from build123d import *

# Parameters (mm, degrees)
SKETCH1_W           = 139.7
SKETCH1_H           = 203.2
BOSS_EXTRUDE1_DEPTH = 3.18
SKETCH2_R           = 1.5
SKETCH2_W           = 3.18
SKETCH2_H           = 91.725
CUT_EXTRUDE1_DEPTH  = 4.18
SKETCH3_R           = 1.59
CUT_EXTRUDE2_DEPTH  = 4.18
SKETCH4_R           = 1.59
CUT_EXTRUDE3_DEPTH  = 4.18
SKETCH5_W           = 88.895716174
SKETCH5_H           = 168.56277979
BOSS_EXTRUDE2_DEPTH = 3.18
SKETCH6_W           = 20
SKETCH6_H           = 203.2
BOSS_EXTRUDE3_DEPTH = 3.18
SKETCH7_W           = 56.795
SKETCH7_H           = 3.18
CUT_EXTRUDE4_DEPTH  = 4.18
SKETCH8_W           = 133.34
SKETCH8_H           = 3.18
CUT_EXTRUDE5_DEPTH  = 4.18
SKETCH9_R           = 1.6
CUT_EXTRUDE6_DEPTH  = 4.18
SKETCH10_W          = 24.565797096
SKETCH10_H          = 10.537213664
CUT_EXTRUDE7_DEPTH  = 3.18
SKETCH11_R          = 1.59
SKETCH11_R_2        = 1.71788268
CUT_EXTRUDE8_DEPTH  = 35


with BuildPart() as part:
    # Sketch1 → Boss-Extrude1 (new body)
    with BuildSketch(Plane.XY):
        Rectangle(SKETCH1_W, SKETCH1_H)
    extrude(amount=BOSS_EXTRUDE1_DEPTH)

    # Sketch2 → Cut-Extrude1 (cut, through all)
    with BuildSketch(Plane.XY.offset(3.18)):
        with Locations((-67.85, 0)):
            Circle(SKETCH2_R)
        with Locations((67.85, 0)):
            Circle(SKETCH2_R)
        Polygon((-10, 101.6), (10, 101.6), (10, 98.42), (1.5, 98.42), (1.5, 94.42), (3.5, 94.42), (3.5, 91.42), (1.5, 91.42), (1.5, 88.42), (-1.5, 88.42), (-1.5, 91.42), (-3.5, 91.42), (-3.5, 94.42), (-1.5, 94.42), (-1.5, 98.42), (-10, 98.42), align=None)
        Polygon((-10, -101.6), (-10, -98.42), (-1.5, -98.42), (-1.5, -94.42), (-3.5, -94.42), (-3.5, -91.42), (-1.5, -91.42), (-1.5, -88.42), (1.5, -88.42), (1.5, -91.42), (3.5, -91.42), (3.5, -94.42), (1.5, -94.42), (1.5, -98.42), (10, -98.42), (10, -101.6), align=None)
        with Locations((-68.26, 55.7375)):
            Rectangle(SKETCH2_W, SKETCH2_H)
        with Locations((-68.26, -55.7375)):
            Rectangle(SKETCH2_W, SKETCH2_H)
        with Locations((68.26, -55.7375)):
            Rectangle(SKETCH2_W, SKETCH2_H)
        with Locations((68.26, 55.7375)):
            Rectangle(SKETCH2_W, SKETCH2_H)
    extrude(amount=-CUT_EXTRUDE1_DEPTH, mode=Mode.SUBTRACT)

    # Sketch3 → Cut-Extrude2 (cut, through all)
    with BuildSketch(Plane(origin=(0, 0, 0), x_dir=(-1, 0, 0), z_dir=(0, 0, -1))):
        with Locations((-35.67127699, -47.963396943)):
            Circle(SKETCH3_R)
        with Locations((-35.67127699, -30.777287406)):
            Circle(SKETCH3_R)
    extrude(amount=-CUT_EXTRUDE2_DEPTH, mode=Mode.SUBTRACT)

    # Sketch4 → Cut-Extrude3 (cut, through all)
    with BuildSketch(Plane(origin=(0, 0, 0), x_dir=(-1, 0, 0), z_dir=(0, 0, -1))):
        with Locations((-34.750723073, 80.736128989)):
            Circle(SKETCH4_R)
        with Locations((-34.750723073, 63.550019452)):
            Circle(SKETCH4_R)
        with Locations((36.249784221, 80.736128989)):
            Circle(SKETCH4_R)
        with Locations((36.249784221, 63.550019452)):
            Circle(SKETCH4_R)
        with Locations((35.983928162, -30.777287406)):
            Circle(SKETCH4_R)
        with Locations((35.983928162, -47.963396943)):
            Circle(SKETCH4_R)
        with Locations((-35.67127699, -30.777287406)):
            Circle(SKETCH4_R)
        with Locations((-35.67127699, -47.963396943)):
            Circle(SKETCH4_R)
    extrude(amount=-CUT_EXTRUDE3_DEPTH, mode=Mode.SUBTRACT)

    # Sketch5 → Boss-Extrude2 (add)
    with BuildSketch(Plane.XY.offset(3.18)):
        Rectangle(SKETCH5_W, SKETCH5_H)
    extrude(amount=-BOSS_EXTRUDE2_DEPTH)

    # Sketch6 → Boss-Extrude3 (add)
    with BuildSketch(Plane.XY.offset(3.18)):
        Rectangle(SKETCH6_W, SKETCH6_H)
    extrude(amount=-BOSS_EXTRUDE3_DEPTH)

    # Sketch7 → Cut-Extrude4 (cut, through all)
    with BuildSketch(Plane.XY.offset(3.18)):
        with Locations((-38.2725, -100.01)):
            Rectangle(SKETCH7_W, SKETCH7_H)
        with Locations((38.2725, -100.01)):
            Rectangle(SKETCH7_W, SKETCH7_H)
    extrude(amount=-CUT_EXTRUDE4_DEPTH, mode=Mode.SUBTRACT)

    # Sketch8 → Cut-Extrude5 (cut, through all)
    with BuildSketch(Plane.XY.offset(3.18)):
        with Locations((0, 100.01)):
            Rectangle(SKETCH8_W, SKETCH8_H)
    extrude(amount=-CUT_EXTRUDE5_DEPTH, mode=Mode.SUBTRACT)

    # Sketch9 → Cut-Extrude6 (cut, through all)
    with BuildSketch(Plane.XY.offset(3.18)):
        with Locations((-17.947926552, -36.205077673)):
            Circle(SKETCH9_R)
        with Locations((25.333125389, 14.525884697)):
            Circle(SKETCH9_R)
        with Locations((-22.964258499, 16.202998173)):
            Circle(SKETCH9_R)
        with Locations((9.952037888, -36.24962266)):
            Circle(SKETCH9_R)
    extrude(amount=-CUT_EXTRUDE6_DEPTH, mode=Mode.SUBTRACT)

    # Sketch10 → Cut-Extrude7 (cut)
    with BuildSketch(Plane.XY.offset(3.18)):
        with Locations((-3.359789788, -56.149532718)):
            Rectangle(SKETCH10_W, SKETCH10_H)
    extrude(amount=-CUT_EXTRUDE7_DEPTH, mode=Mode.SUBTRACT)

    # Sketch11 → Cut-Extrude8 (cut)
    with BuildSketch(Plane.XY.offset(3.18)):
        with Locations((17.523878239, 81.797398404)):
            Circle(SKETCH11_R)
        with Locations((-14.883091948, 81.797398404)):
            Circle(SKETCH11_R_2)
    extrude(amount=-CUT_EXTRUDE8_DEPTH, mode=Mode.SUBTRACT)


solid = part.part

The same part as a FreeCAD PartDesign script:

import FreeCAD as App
import Part
import Sketcher
from FreeCAD import Vector

doc = App.newDocument("Part")
params = doc.addObject("Spreadsheet::Sheet", "Params")
for row, (alias, value) in enumerate([
    ("sketch1_width", "139.7 mm"),
    ("sketch1_height", "203.2 mm"),
    ("pad1_length", "3.18 mm"),
    ("sketch2_diameter", "3 mm"),
    ("sketch2_width", "20 mm"),
    ("sketch2_width2", "2 mm"),
    ("sketch2_width3", "3 mm"),
    ("sketch2_height", "4 mm"),
    ("sketch3_diameter", "3.18 mm"),
    ("sketch4_diameter", "3.18 mm"),
    ("pad2_length", "3.18 mm"),
    ("sketch6_width", "20 mm"),
    ("sketch6_height", "203.2 mm"),
    ("pad3_length", "3.18 mm"),
    ("sketch7_height", "3.18 mm"),
    ("sketch8_width", "133.34 mm"),
    ("sketch8_height", "3.18 mm"),
    ("sketch9_diameter", "3.2 mm"),
    ("pocket7_length", "3.18 mm"),
    ("sketch11_diameter", "3.18 mm"),
    ("pocket8_length", "35 mm"),
], start=1):
    params.set(f"A{row}", alias)
    params.set(f"B{row}", "=" + value)
    params.setAlias(f"B{row}", alias)

body = doc.addObject("PartDesign::Body", "Body")

sketch1 = body.newObject("Sketcher::SketchObject", "Sketch")
sketch1.AttachmentSupport = (doc.getObject("XY_Plane"), [""])
sketch1.MapMode = "FlatFace"
sketch1.addGeometry(Part.LineSegment(Vector(-69.85, 101.6, 0), Vector(-69.85, -101.6, 0)), False)
sketch1.addGeometry(Part.LineSegment(Vector(-69.85, -101.6, 0), Vector(69.85, -101.6, 0)), False)
sketch1.addGeometry(Part.LineSegment(Vector(69.85, -101.6, 0), Vector(69.85, 101.6, 0)), False)
sketch1.addGeometry(Part.LineSegment(Vector(69.85, 101.6, 0), Vector(-69.85, 101.6, 0)), False)
sketch1.addConstraint(Sketcher.Constraint("Coincident", 0, 2, 1, 1))
sketch1.addConstraint(Sketcher.Constraint("Coincident", 1, 2, 2, 1))
sketch1.addConstraint(Sketcher.Constraint("Coincident", 2, 2, 3, 1))
sketch1.addConstraint(Sketcher.Constraint("Coincident", 3, 2, 0, 1))
sketch1.addConstraint(Sketcher.Constraint("Vertical", 0))
sketch1.addConstraint(Sketcher.Constraint("Horizontal", 1))
sketch1.addConstraint(Sketcher.Constraint("Vertical", 2))
sketch1.addConstraint(Sketcher.Constraint("Horizontal", 3))
sketch1.addConstraint(Sketcher.Constraint("Symmetric", 0, 2, 2, 2, -1, 1))
sketch1.addConstraint(Sketcher.Constraint("DistanceX", 1, 1, 1, 2, 139.7))
sketch1.addConstraint(Sketcher.Constraint("DistanceY", 0, 2, 0, 1, 203.2))
sketch1.setExpression("Constraints[9]", "Params.sketch1_width")
sketch1.setExpression("Constraints[10]", "Params.sketch1_height")
pad1 = body.newObject("PartDesign::Pad", "Pad")
pad1.Profile = sketch1
pad1.setExpression("Length", "Params.pad1_length")

sketch2 = body.newObject("Sketcher::SketchObject", "Sketch001")
sketch2.AttachmentSupport = (doc.getObject("XY_Plane"), [""])
sketch2.MapMode = "FlatFace"
sketch2.AttachmentOffset = App.Placement(Vector(0, 0, 3.18), App.Rotation())
sketch2.addGeometry(Part.Circle(Vector(-67.85, 0, 0), Vector(0, 0, 1), 1.5), False)
sketch2.addGeometry(Part.Circle(Vector(67.85, 0, 0), Vector(0, 0, 1), 1.5), False)
sketch2.addGeometry(Part.LineSegment(Vector(10, 101.6, 0), Vector(-10, 101.6, 0)), False)
sketch2.addGeometry(Part.LineSegment(Vector(-10, 101.6, 0), Vector(-10, 98.42, 0)), False)
sketch2.addGeometry(Part.LineSegment(Vector(-10, 98.42, 0), Vector(-1.5, 98.42, 0)), False)
sketch2.addGeometry(Part.LineSegment(Vector(-1.5, 98.42, 0), Vector(-1.5, 94.42, 0)), False)
sketch2.addGeometry(Part.LineSegment(Vector(-1.5, 94.42, 0), Vector(-3.5, 94.42, 0)), False)
sketch2.addGeometry(Part.LineSegment(Vector(-3.5, 94.42, 0), Vector(-3.5, 91.42, 0)), False)
sketch2.addGeometry(Part.LineSegment(Vector(-3.5, 91.42, 0), Vector(-1.5, 91.42, 0)), False)
sketch2.addGeometry(Part.LineSegment(Vector(-1.5, 91.42, 0), Vector(-1.5, 88.42, 0)), False)
sketch2.addGeometry(Part.LineSegment(Vector(-1.5, 88.42, 0), Vector(1.5, 88.42, 0)), False)
sketch2.addGeometry(Part.LineSegment(Vector(1.5, 88.42, 0), Vector(1.5, 91.42, 0)), False)
sketch2.addGeometry(Part.LineSegment(Vector(1.5, 91.42, 0), Vector(3.5, 91.42, 0)), False)
sketch2.addGeometry(Part.LineSegment(Vector(3.5, 91.42, 0), Vector(3.5, 94.42, 0)), False)
sketch2.addGeometry(Part.LineSegment(Vector(3.5, 94.42, 0), Vector(1.5, 94.42, 0)), False)
sketch2.addGeometry(Part.LineSegment(Vector(1.5, 94.42, 0), Vector(1.5, 98.42, 0)), False)
sketch2.addGeometry(Part.LineSegment(Vector(1.5, 98.42, 0), Vector(10, 98.42, 0)), False)
sketch2.addGeometry(Part.LineSegment(Vector(10, 98.42, 0), Vector(10, 101.6, 0)), False)
sketch2.addGeometry(Part.LineSegment(Vector(-10, -98.42, 0), Vector(-10, -101.6, 0)), False)
sketch2.addGeometry(Part.LineSegment(Vector(-10, -101.6, 0), Vector(10, -101.6, 0)), False)
sketch2.addGeometry(Part.LineSegment(Vector(10, -101.6, 0), Vector(10, -98.42, 0)), False)
sketch2.addGeometry(Part.LineSegment(Vector(10, -98.42, 0), Vector(1.5, -98.42, 0)), False)
sketch2.addGeometry(Part.LineSegment(Vector(1.5, -98.42, 0), Vector(1.5, -94.42, 0)), False)
sketch2.addGeometry(Part.LineSegment(Vector(1.5, -94.42, 0), Vector(3.5, -94.42, 0)), False)
sketch2.addGeometry(Part.LineSegment(Vector(3.5, -94.42, 0), Vector(3.5, -91.42, 0)), False)
sketch2.addGeometry(Part.LineSegment(Vector(3.5, -91.42, 0), Vector(1.5, -91.42, 0)), False)
sketch2.addGeometry(Part.LineSegment(Vector(1.5, -91.42, 0), Vector(1.5, -88.42, 0)), False)
sketch2.addGeometry(Part.LineSegment(Vector(1.5, -88.42, 0), Vector(-1.5, -88.42, 0)), False)
sketch2.addGeometry(Part.LineSegment(Vector(-1.5, -88.42, 0), Vector(-1.5, -91.42, 0)), False)
sketch2.addGeometry(Part.LineSegment(Vector(-1.5, -91.42, 0), Vector(-3.5, -91.42, 0)), False)
sketch2.addGeometry(Part.LineSegment(Vector(-3.5, -91.42, 0), Vector(-3.5, -94.42, 0)), False)
sketch2.addGeometry(Part.LineSegment(Vector(-3.5, -94.42, 0), Vector(-1.5, -94.42, 0)), False)
sketch2.addGeometry(Part.LineSegment(Vector(-1.5, -94.42, 0), Vector(-1.5, -98.42, 0)), False)
sketch2.addGeometry(Part.LineSegment(Vector(-1.5, -98.42, 0), Vector(-10, -98.42, 0)), False)
sketch2.addGeometry(Part.LineSegment(Vector(-69.85, 101.6, 0), Vector(-69.85, 9.875, 0)), False)
sketch2.addGeometry(Part.LineSegment(Vector(-69.85, 9.875, 0), Vector(-66.67, 9.875, 0)), False)
sketch2.addGeometry(Part.LineSegment(Vector(-66.67, 9.875, 0), Vector(-66.67, 101.6, 0)), False)
sketch2.addGeometry(Part.LineSegment(Vector(-66.67, 101.6, 0), Vector(-69.85, 101.6, 0)), False)
sketch2.addGeometry(Part.LineSegment(Vector(-69.85, -9.875, 0), Vector(-69.85, -101.6, 0)), False)
sketch2.addGeometry(Part.LineSegment(Vector(-69.85, -101.6, 0), Vector(-66.67, -101.6, 0)), False)
sketch2.addGeometry(Part.LineSegment(Vector(-66.67, -101.6, 0), Vector(-66.67, -9.875, 0)), False)
sketch2.addGeometry(Part.LineSegment(Vector(-66.67, -9.875, 0), Vector(-69.85, -9.875, 0)), False)
sketch2.addGeometry(Part.LineSegment(Vector(66.67, -9.875, 0), Vector(66.67, -101.6, 0)), False)
sketch2.addGeometry(Part.LineSegment(Vector(66.67, -101.6, 0), Vector(69.85, -101.6, 0)), False)
sketch2.addGeometry(Part.LineSegment(Vector(69.85, -101.6, 0), Vector(69.85, -9.875, 0)), False)
sketch2.addGeometry(Part.LineSegment(Vector(69.85, -9.875, 0), Vector(66.67, -9.875, 0)), False)
sketch2.addGeometry(Part.LineSegment(Vector(66.67, 101.6, 0), Vector(66.67, 9.875, 0)), False)
sketch2.addGeometry(Part.LineSegment(Vector(66.67, 9.875, 0), Vector(69.85, 9.875, 0)), False)
sketch2.addGeometry(Part.LineSegment(Vector(69.85, 9.875, 0), Vector(69.85, 101.6, 0)), False)
sketch2.addGeometry(Part.LineSegment(Vector(69.85, 101.6, 0), Vector(66.67, 101.6, 0)), False)
sketch2.addConstraint(Sketcher.Constraint("Coincident", 2, 2, 3, 1))
sketch2.addConstraint(Sketcher.Constraint("Coincident", 3, 2, 4, 1))
sketch2.addConstraint(Sketcher.Constraint("Coincident", 4, 2, 5, 1))
sketch2.addConstraint(Sketcher.Constraint("Coincident", 5, 2, 6, 1))
sketch2.addConstraint(Sketcher.Constraint("Coincident", 6, 2, 7, 1))
sketch2.addConstraint(Sketcher.Constraint("Coincident", 7, 2, 8, 1))
sketch2.addConstraint(Sketcher.Constraint("Coincident", 8, 2, 9, 1))
sketch2.addConstraint(Sketcher.Constraint("Coincident", 9, 2, 10, 1))
sketch2.addConstraint(Sketcher.Constraint("Coincident", 10, 2, 11, 1))
sketch2.addConstraint(Sketcher.Constraint("Coincident", 11, 2, 12, 1))
sketch2.addConstraint(Sketcher.Constraint("Coincident", 12, 2, 13, 1))
sketch2.addConstraint(Sketcher.Constraint("Coincident", 13, 2, 14, 1))
sketch2.addConstraint(Sketcher.Constraint("Coincident", 14, 2, 15, 1))
sketch2.addConstraint(Sketcher.Constraint("Coincident", 15, 2, 16, 1))
sketch2.addConstraint(Sketcher.Constraint("Coincident", 16, 2, 17, 1))
sketch2.addConstraint(Sketcher.Constraint("Coincident", 17, 2, 2, 1))
sketch2.addConstraint(Sketcher.Constraint("Coincident", 18, 2, 19, 1))
sketch2.addConstraint(Sketcher.Constraint("Coincident", 19, 2, 20, 1))
sketch2.addConstraint(Sketcher.Constraint("Coincident", 20, 2, 21, 1))
sketch2.addConstraint(Sketcher.Constraint("Coincident", 21, 2, 22, 1))
sketch2.addConstraint(Sketcher.Constraint("Coincident", 22, 2, 23, 1))
sketch2.addConstraint(Sketcher.Constraint("Coincident", 23, 2, 24, 1))
sketch2.addConstraint(Sketcher.Constraint("Coincident", 24, 2, 25, 1))
sketch2.addConstraint(Sketcher.Constraint("Coincident", 25, 2, 26, 1))
sketch2.addConstraint(Sketcher.Constraint("Coincident", 26, 2, 27, 1))
sketch2.addConstraint(Sketcher.Constraint("Coincident", 27, 2, 28, 1))
sketch2.addConstraint(Sketcher.Constraint("Coincident", 28, 2, 29, 1))
sketch2.addConstraint(Sketcher.Constraint("Coincident", 29, 2, 30, 1))
sketch2.addConstraint(Sketcher.Constraint("Coincident", 30, 2, 31, 1))
sketch2.addConstraint(Sketcher.Constraint("Coincident", 31, 2, 32, 1))
sketch2.addConstraint(Sketcher.Constraint("Coincident", 32, 2, 33, 1))
sketch2.addConstraint(Sketcher.Constraint("Coincident", 33, 2, 18, 1))
sketch2.addConstraint(Sketcher.Constraint("Coincident", 34, 2, 35, 1))
sketch2.addConstraint(Sketcher.Constraint("Coincident", 35, 2, 36, 1))
sketch2.addConstraint(Sketcher.Constraint("Coincident", 36, 2, 37, 1))
sketch2.addConstraint(Sketcher.Constraint("Coincident", 37, 2, 34, 1))
sketch2.addConstraint(Sketcher.Constraint("Coincident", 38, 2, 39, 1))
sketch2.addConstraint(Sketcher.Constraint("Coincident", 39, 2, 40, 1))
sketch2.addConstraint(Sketcher.Constraint("Coincident", 40, 2, 41, 1))
sketch2.addConstraint(Sketcher.Constraint("Coincident", 41, 2, 38, 1))
sketch2.addConstraint(Sketcher.Constraint("Coincident", 42, 2, 43, 1))
sketch2.addConstraint(Sketcher.Constraint("Coincident", 43, 2, 44, 1))
sketch2.addConstraint(Sketcher.Constraint("Coincident", 44, 2, 45, 1))
sketch2.addConstraint(Sketcher.Constraint("Coincident", 45, 2, 42, 1))
sketch2.addConstraint(Sketcher.Constraint("Coincident", 46, 2, 47, 1))
sketch2.addConstraint(Sketcher.Constraint("Coincident", 47, 2, 48, 1))
sketch2.addConstraint(Sketcher.Constraint("Coincident", 48, 2, 49, 1))
sketch2.addConstraint(Sketcher.Constraint("Coincident", 49, 2, 46, 1))
sketch2.addConstraint(Sketcher.Constraint("Horizontal", 2))
sketch2.addConstraint(Sketcher.Constraint("Vertical", 3))
sketch2.addConstraint(Sketcher.Constraint("Horizontal", 4))
sketch2.addConstraint(Sketcher.Constraint("Vertical", 5))
sketch2.addConstraint(Sketcher.Constraint("Horizontal", 6))
sketch2.addConstraint(Sketcher.Constraint("Vertical", 7))
sketch2.addConstraint(Sketcher.Constraint("Horizontal", 8))
sketch2.addConstraint(Sketcher.Constraint("Vertical", 9))
sketch2.addConstraint(Sketcher.Constraint("Horizontal", 10))
sketch2.addConstraint(Sketcher.Constraint("Vertical", 11))
sketch2.addConstraint(Sketcher.Constraint("Horizontal", 12))
sketch2.addConstraint(Sketcher.Constraint("Vertical", 13))
sketch2.addConstraint(Sketcher.Constraint("Horizontal", 14))
sketch2.addConstraint(Sketcher.Constraint("Vertical", 15))
sketch2.addConstraint(Sketcher.Constraint("Horizontal", 16))
sketch2.addConstraint(Sketcher.Constraint("Vertical", 17))
sketch2.addConstraint(Sketcher.Constraint("Vertical", 18))
sketch2.addConstraint(Sketcher.Constraint("Horizontal", 19))
sketch2.addConstraint(Sketcher.Constraint("Vertical", 20))
sketch2.addConstraint(Sketcher.Constraint("Horizontal", 21))
sketch2.addConstraint(Sketcher.Constraint("Vertical", 22))
sketch2.addConstraint(Sketcher.Constraint("Horizontal", 23))
sketch2.addConstraint(Sketcher.Constraint("Vertical", 24))
sketch2.addConstraint(Sketcher.Constraint("Horizontal", 25))
sketch2.addConstraint(Sketcher.Constraint("Vertical", 26))
sketch2.addConstraint(Sketcher.Constraint("Horizontal", 27))
sketch2.addConstraint(Sketcher.Constraint("Vertical", 28))
sketch2.addConstraint(Sketcher.Constraint("Horizontal", 29))
sketch2.addConstraint(Sketcher.Constraint("Vertical", 30))
sketch2.addConstraint(Sketcher.Constraint("Horizontal", 31))
sketch2.addConstraint(Sketcher.Constraint("Vertical", 32))
sketch2.addConstraint(Sketcher.Constraint("Horizontal", 33))
sketch2.addConstraint(Sketcher.Constraint("Vertical", 34))
sketch2.addConstraint(Sketcher.Constraint("Horizontal", 35))
sketch2.addConstraint(Sketcher.Constraint("Vertical", 36))
sketch2.addConstraint(Sketcher.Constraint("Horizontal", 37))
sketch2.addConstraint(Sketcher.Constraint("Vertical", 38))
sketch2.addConstraint(Sketcher.Constraint("Horizontal", 39))
sketch2.addConstraint(Sketcher.Constraint("Vertical", 40))
sketch2.addConstraint(Sketcher.Constraint("Horizontal", 41))
sketch2.addConstraint(Sketcher.Constraint("Vertical", 42))
sketch2.addConstraint(Sketcher.Constraint("Horizontal", 43))
sketch2.addConstraint(Sketcher.Constraint("Vertical", 44))
sketch2.addConstraint(Sketcher.Constraint("Horizontal", 45))
sketch2.addConstraint(Sketcher.Constraint("Vertical", 46))
sketch2.addConstraint(Sketcher.Constraint("Horizontal", 47))
sketch2.addConstraint(Sketcher.Constraint("Vertical", 48))
sketch2.addConstraint(Sketcher.Constraint("Horizontal", 49))
sketch2.addConstraint(Sketcher.Constraint("Equal", 0, 1))
sketch2.addConstraint(Sketcher.Constraint("Symmetric", 0, 3, 1, 3, -1, 1))
sketch2.addConstraint(Sketcher.Constraint("Symmetric", 17, 2, 18, 2, -1, 1))
sketch2.addConstraint(Sketcher.Constraint("Symmetric", 3, 2, 20, 2, -1, 1))
sketch2.addConstraint(Sketcher.Constraint("Symmetric", 5, 2, 22, 2, -1, 1))
sketch2.addConstraint(Sketcher.Constraint("Symmetric", 7, 2, 24, 2, -1, 1))
sketch2.addConstraint(Sketcher.Constraint("Symmetric", 9, 2, 26, 2, -1, 1))
sketch2.addConstraint(Sketcher.Constraint("Symmetric", 11, 2, 28, 2, -1, 1))
sketch2.addConstraint(Sketcher.Constraint("Symmetric", 13, 2, 30, 2, -1, 1))
sketch2.addConstraint(Sketcher.Constraint("Symmetric", 15, 2, 32, 2, -1, 1))
sketch2.addConstraint(Sketcher.Constraint("Symmetric", 36, 2, 42, 2, -1, 1))
sketch2.addConstraint(Sketcher.Constraint("Symmetric", 34, 2, 44, 2, -1, 1))
sketch2.addConstraint(Sketcher.Constraint("Symmetric", 40, 2, 46, 2, -1, 1))
sketch2.addConstraint(Sketcher.Constraint("Symmetric", 38, 2, 48, 2, -1, 1))
sketch2.addConstraint(Sketcher.Constraint("Symmetric", 8, 2, 11, 2, -2))
sketch2.addConstraint(Sketcher.Constraint("Symmetric", 6, 2, 13, 2, -2))
sketch2.addConstraint(Sketcher.Constraint("Symmetric", 4, 2, 15, 2, -2))
sketch2.addConstraint(Sketcher.Constraint("Symmetric", 39, 2, 42, 2, -2))
sketch2.addConstraint(Sketcher.Constraint("Symmetric", 41, 2, 44, 2, -2))
sketch2.addConstraint(Sketcher.Constraint("PointOnObject", 0, 3, -1))
sketch2.addConstraint(Sketcher.Constraint("Horizontal", 17, 2, 36, 2))
sketch2.addConstraint(Sketcher.Constraint("Vertical", 5, 2, 8, 2))
sketch2.addConstraint(Sketcher.Constraint("Vertical", 3, 2, 18, 2))
sketch2.addConstraint(Sketcher.Constraint("Equal", 49, 3))
sketch2.addConstraint(Sketcher.Constraint("Equal", 27, 7))
sketch2.addConstraint(Sketcher.Constraint("Equal", 7, 9))
sketch2.addConstraint(Sketcher.Constraint("Diameter", 0, 3.0))
sketch2.addConstraint(Sketcher.Constraint("DistanceX", 2, 2, 2, 1, 20.0))
sketch2.addConstraint(Sketcher.Constraint("DistanceX", 6, 2, 6, 1, 2.0))
sketch2.addConstraint(Sketcher.Constraint("DistanceX", 10, 1, 10, 2, 3.0))
sketch2.addConstraint(Sketcher.Constraint("DistanceY", 5, 2, 5, 1, 4.0))
sketch2.addConstraint(Sketcher.Constraint("DistanceX", 34, 2, 0, 3, 2.0))
sketch2.addConstraint(Sketcher.Constraint("DistanceX", 35, 1, 35, 2, 3.18))
sketch2.addConstraint(Sketcher.Constraint("DistanceY", -1, 1, 2, 2, 101.6))
sketch2.addConstraint(Sketcher.Constraint("DistanceX", 0, 3, 1, 3, 135.7))
sketch2.addConstraint(Sketcher.Constraint("DistanceY", 34, 2, 34, 1, 91.725))
sketch2.setExpression("Constraints[122]", "Params.sketch2_diameter")
sketch2.setExpression("Constraints[123]", "Params.sketch2_width")
sketch2.setExpression("Constraints[124]", "Params.sketch2_width2")
sketch2.setExpression("Constraints[125]", "Params.sketch2_width3")
sketch2.setExpression("Constraints[126]", "Params.sketch2_height")
pocket1 = body.newObject("PartDesign::Pocket", "Pocket")
pocket1.Profile = sketch2
pocket1.Type = "ThroughAll"

sketch3 = body.newObject("Sketcher::SketchObject", "Sketch002")
sketch3.AttachmentSupport = (doc.getObject("XY_Plane"), [""])
sketch3.MapMode = "FlatFace"
sketch3.addGeometry(Part.Circle(Vector(35.671277, -47.963397, 0), Vector(0, 0, 1), 1.59), False)
sketch3.addGeometry(Part.Circle(Vector(35.671277, -30.777287, 0), Vector(0, 0, 1), 1.59), False)
sketch3.addConstraint(Sketcher.Constraint("Equal", 0, 1))
sketch3.addConstraint(Sketcher.Constraint("Vertical", 0, 3, 1, 3))
sketch3.addConstraint(Sketcher.Constraint("Diameter", 0, 3.18))
sketch3.addConstraint(Sketcher.Constraint("DistanceY", 0, 3, 1, 3, 17.18611))
sketch3.addConstraint(Sketcher.Constraint("DistanceX", -1, 1, 0, 3, 35.671277))
sketch3.addConstraint(Sketcher.Constraint("DistanceY", 0, 3, -1, 1, 47.963397))
sketch3.setExpression("Constraints[2]", "Params.sketch3_diameter")
pocket2 = body.newObject("PartDesign::Pocket", "Pocket001")
pocket2.Profile = sketch3
pocket2.Type = "ThroughAll"
pocket2.Reversed = True

sketch4 = body.newObject("Sketcher::SketchObject", "Sketch003")
sketch4.AttachmentSupport = (doc.getObject("XY_Plane"), [""])
sketch4.MapMode = "FlatFace"
sketch4.addGeometry(Part.Circle(Vector(34.750723, 80.736129, 0), Vector(0, 0, 1), 1.59), False)
sketch4.addGeometry(Part.Circle(Vector(34.750723, 63.550019, 0), Vector(0, 0, 1), 1.59), False)
sketch4.addGeometry(Part.Circle(Vector(-36.249784, 80.736129, 0), Vector(0, 0, 1), 1.59), False)
sketch4.addGeometry(Part.Circle(Vector(-36.249784, 63.550019, 0), Vector(0, 0, 1), 1.59), False)
sketch4.addGeometry(Part.Circle(Vector(-35.983928, -30.777287, 0), Vector(0, 0, 1), 1.59), False)
sketch4.addGeometry(Part.Circle(Vector(-35.983928, -47.963397, 0), Vector(0, 0, 1), 1.59), False)
sketch4.addGeometry(Part.Circle(Vector(35.671277, -30.777287, 0), Vector(0, 0, 1), 1.59), False)
sketch4.addGeometry(Part.Circle(Vector(35.671277, -47.963397, 0), Vector(0, 0, 1), 1.59), False)
sketch4.addConstraint(Sketcher.Constraint("Equal", 0, 1))
sketch4.addConstraint(Sketcher.Constraint("Equal", 1, 2))
sketch4.addConstraint(Sketcher.Constraint("Equal", 2, 3))
sketch4.addConstraint(Sketcher.Constraint("Equal", 3, 4))
sketch4.addConstraint(Sketcher.Constraint("Equal", 4, 5))
sketch4.addConstraint(Sketcher.Constraint("Equal", 5, 6))
sketch4.addConstraint(Sketcher.Constraint("Equal", 6, 7))
sketch4.addConstraint(Sketcher.Constraint("Horizontal", 0, 3, 2, 3))
sketch4.addConstraint(Sketcher.Constraint("Horizontal", 1, 3, 3, 3))
sketch4.addConstraint(Sketcher.Constraint("Horizontal", 4, 3, 6, 3))
sketch4.addConstraint(Sketcher.Constraint("Horizontal", 5, 3, 7, 3))
sketch4.addConstraint(Sketcher.Constraint("Vertical", 0, 3, 1, 3))
sketch4.addConstraint(Sketcher.Constraint("Vertical", 2, 3, 3, 3))
sketch4.addConstraint(Sketcher.Constraint("Vertical", 4, 3, 5, 3))
sketch4.addConstraint(Sketcher.Constraint("Vertical", 6, 3, 7, 3))
sketch4.addConstraint(Sketcher.Constraint("Diameter", 0, 3.18))
sketch4.addConstraint(Sketcher.Constraint("DistanceY", -1, 1, 0, 3, 80.736129))
sketch4.addConstraint(Sketcher.Constraint("DistanceY", -1, 1, 1, 3, 63.550019))
sketch4.addConstraint(Sketcher.Constraint("DistanceX", 4, 3, -1, 1, 35.983928))
sketch4.addConstraint(Sketcher.Constraint("DistanceX", 4, 3, 1, 3, 70.734651))
sketch4.addConstraint(Sketcher.Constraint("DistanceY", 5, 3, 4, 3, 17.18611))
sketch4.addConstraint(Sketcher.Constraint("DistanceX", 3, 3, 6, 3, 71.921061))
sketch4.addConstraint(Sketcher.Constraint("DistanceX", 2, 3, -1, 1, 36.249784))
sketch4.addConstraint(Sketcher.Constraint("DistanceY", 4, 3, -1, 1, 30.777287))
sketch4.setExpression("Constraints[15]", "Params.sketch4_diameter")
pocket3 = body.newObject("PartDesign::Pocket", "Pocket002")
pocket3.Profile = sketch4
pocket3.Type = "ThroughAll"
pocket3.Reversed = True

sketch5 = body.newObject("Sketcher::SketchObject", "Sketch004")
sketch5.AttachmentSupport = (doc.getObject("XY_Plane"), [""])
sketch5.MapMode = "FlatFace"
sketch5.AttachmentOffset = App.Placement(Vector(0, 0, 3.18), App.Rotation())
sketch5.addGeometry(Part.LineSegment(Vector(-44.447858, 84.28139, 0), Vector(-44.447858, -84.28139, 0)), False)
sketch5.addGeometry(Part.LineSegment(Vector(-44.447858, -84.28139, 0), Vector(44.447858, -84.28139, 0)), False)
sketch5.addGeometry(Part.LineSegment(Vector(44.447858, -84.28139, 0), Vector(44.447858, 84.28139, 0)), False)
sketch5.addGeometry(Part.LineSegment(Vector(44.447858, 84.28139, 0), Vector(-44.447858, 84.28139, 0)), False)
sketch5.addConstraint(Sketcher.Constraint("Coincident", 0, 2, 1, 1))
sketch5.addConstraint(Sketcher.Constraint("Coincident", 1, 2, 2, 1))
sketch5.addConstraint(Sketcher.Constraint("Coincident", 2, 2, 3, 1))
sketch5.addConstraint(Sketcher.Constraint("Coincident", 3, 2, 0, 1))
sketch5.addConstraint(Sketcher.Constraint("Vertical", 0))
sketch5.addConstraint(Sketcher.Constraint("Horizontal", 1))
sketch5.addConstraint(Sketcher.Constraint("Vertical", 2))
sketch5.addConstraint(Sketcher.Constraint("Horizontal", 3))
sketch5.addConstraint(Sketcher.Constraint("Symmetric", 0, 2, 2, 2, -1, 1))
sketch5.addConstraint(Sketcher.Constraint("DistanceY", 0, 2, 0, 1, 168.56278))
sketch5.addConstraint(Sketcher.Constraint("DistanceX", 1, 1, 1, 2, 88.895716))
pad2 = body.newObject("PartDesign::Pad", "Pad001")
pad2.Profile = sketch5
pad2.setExpression("Length", "Params.pad2_length")
pad2.Reversed = True

sketch6 = body.newObject("Sketcher::SketchObject", "Sketch005")
sketch6.AttachmentSupport = (doc.getObject("XY_Plane"), [""])
sketch6.MapMode = "FlatFace"
sketch6.AttachmentOffset = App.Placement(Vector(0, 0, 3.18), App.Rotation())
sketch6.addGeometry(Part.LineSegment(Vector(-10, 101.6, 0), Vector(-10, -101.6, 0)), False)
sketch6.addGeometry(Part.LineSegment(Vector(-10, -101.6, 0), Vector(10, -101.6, 0)), False)
sketch6.addGeometry(Part.LineSegment(Vector(10, -101.6, 0), Vector(10, 101.6, 0)), False)
sketch6.addGeometry(Part.LineSegment(Vector(10, 101.6, 0), Vector(-10, 101.6, 0)), False)
sketch6.addConstraint(Sketcher.Constraint("Coincident", 0, 2, 1, 1))
sketch6.addConstraint(Sketcher.Constraint("Coincident", 1, 2, 2, 1))
sketch6.addConstraint(Sketcher.Constraint("Coincident", 2, 2, 3, 1))
sketch6.addConstraint(Sketcher.Constraint("Coincident", 3, 2, 0, 1))
sketch6.addConstraint(Sketcher.Constraint("Vertical", 0))
sketch6.addConstraint(Sketcher.Constraint("Horizontal", 1))
sketch6.addConstraint(Sketcher.Constraint("Vertical", 2))
sketch6.addConstraint(Sketcher.Constraint("Horizontal", 3))
sketch6.addConstraint(Sketcher.Constraint("Symmetric", 0, 2, 2, 2, -1, 1))
sketch6.addConstraint(Sketcher.Constraint("DistanceX", 1, 1, 1, 2, 20.0))
sketch6.addConstraint(Sketcher.Constraint("DistanceY", 0, 2, 0, 1, 203.2))
sketch6.setExpression("Constraints[9]", "Params.sketch6_width")
sketch6.setExpression("Constraints[10]", "Params.sketch6_height")
pad3 = body.newObject("PartDesign::Pad", "Pad002")
pad3.Profile = sketch6
pad3.setExpression("Length", "Params.pad3_length")
pad3.Reversed = True

sketch7 = body.newObject("Sketcher::SketchObject", "Sketch006")
sketch7.AttachmentSupport = (doc.getObject("XY_Plane"), [""])
sketch7.MapMode = "FlatFace"
sketch7.AttachmentOffset = App.Placement(Vector(0, 0, 3.18), App.Rotation())
sketch7.addGeometry(Part.LineSegment(Vector(-66.67, -98.42, 0), Vector(-66.67, -101.6, 0)), False)
sketch7.addGeometry(Part.LineSegment(Vector(-66.67, -101.6, 0), Vector(-9.875, -101.6, 0)), False)
sketch7.addGeometry(Part.LineSegment(Vector(-9.875, -101.6, 0), Vector(-9.875, -98.42, 0)), False)
sketch7.addGeometry(Part.LineSegment(Vector(-9.875, -98.42, 0), Vector(-66.67, -98.42, 0)), False)
sketch7.addGeometry(Part.LineSegment(Vector(9.875, -98.42, 0), Vector(9.875, -101.6, 0)), False)
sketch7.addGeometry(Part.LineSegment(Vector(9.875, -101.6, 0), Vector(66.67, -101.6, 0)), False)
sketch7.addGeometry(Part.LineSegment(Vector(66.67, -101.6, 0), Vector(66.67, -98.42, 0)), False)
sketch7.addGeometry(Part.LineSegment(Vector(66.67, -98.42, 0), Vector(9.875, -98.42, 0)), False)
sketch7.addConstraint(Sketcher.Constraint("Coincident", 0, 2, 1, 1))
sketch7.addConstraint(Sketcher.Constraint("Coincident", 1, 2, 2, 1))
sketch7.addConstraint(Sketcher.Constraint("Coincident", 2, 2, 3, 1))
sketch7.addConstraint(Sketcher.Constraint("Coincident", 3, 2, 0, 1))
sketch7.addConstraint(Sketcher.Constraint("Coincident", 4, 2, 5, 1))
sketch7.addConstraint(Sketcher.Constraint("Coincident", 5, 2, 6, 1))
sketch7.addConstraint(Sketcher.Constraint("Coincident", 6, 2, 7, 1))
sketch7.addConstraint(Sketcher.Constraint("Coincident", 7, 2, 4, 1))
sketch7.addConstraint(Sketcher.Constraint("Vertical", 0))
sketch7.addConstraint(Sketcher.Constraint("Horizontal", 1))
sketch7.addConstraint(Sketcher.Constraint("Vertical", 2))
sketch7.addConstraint(Sketcher.Constraint("Horizontal", 3))
sketch7.addConstraint(Sketcher.Constraint("Vertical", 4))
sketch7.addConstraint(Sketcher.Constraint("Horizontal", 5))
sketch7.addConstraint(Sketcher.Constraint("Vertical", 6))
sketch7.addConstraint(Sketcher.Constraint("Horizontal", 7))
sketch7.addConstraint(Sketcher.Constraint("Symmetric", 1, 2, 4, 2, -2))
sketch7.addConstraint(Sketcher.Constraint("Symmetric", 3, 2, 6, 2, -2))
sketch7.addConstraint(Sketcher.Constraint("DistanceY", 0, 2, 0, 1, 3.18))
sketch7.addConstraint(Sketcher.Constraint("DistanceY", 0, 2, -1, 1, 101.6))
sketch7.addConstraint(Sketcher.Constraint("DistanceX", 1, 1, 1, 2, 56.795))
sketch7.addConstraint(Sketcher.Constraint("DistanceX", 0, 2, -1, 1, 66.67))
sketch7.setExpression("Constraints[18]", "Params.sketch7_height")
pocket4 = body.newObject("PartDesign::Pocket", "Pocket003")
pocket4.Profile = sketch7
pocket4.Type = "ThroughAll"

sketch8 = body.newObject("Sketcher::SketchObject", "Sketch007")
sketch8.AttachmentSupport = (doc.getObject("XY_Plane"), [""])
sketch8.MapMode = "FlatFace"
sketch8.AttachmentOffset = App.Placement(Vector(0, 0, 3.18), App.Rotation())
sketch8.addGeometry(Part.LineSegment(Vector(-66.67, 101.6, 0), Vector(-66.67, 98.42, 0)), False)
sketch8.addGeometry(Part.LineSegment(Vector(-66.67, 98.42, 0), Vector(66.67, 98.42, 0)), False)
sketch8.addGeometry(Part.LineSegment(Vector(66.67, 98.42, 0), Vector(66.67, 101.6, 0)), False)
sketch8.addGeometry(Part.LineSegment(Vector(66.67, 101.6, 0), Vector(-66.67, 101.6, 0)), False)
sketch8.addConstraint(Sketcher.Constraint("Coincident", 0, 2, 1, 1))
sketch8.addConstraint(Sketcher.Constraint("Coincident", 1, 2, 2, 1))
sketch8.addConstraint(Sketcher.Constraint("Coincident", 2, 2, 3, 1))
sketch8.addConstraint(Sketcher.Constraint("Coincident", 3, 2, 0, 1))
sketch8.addConstraint(Sketcher.Constraint("Vertical", 0))
sketch8.addConstraint(Sketcher.Constraint("Horizontal", 1))
sketch8.addConstraint(Sketcher.Constraint("Vertical", 2))
sketch8.addConstraint(Sketcher.Constraint("Horizontal", 3))
sketch8.addConstraint(Sketcher.Constraint("DistanceX", 1, 1, 1, 2, 133.34))
sketch8.addConstraint(Sketcher.Constraint("DistanceY", 0, 2, 0, 1, 3.18))
sketch8.addConstraint(Sketcher.Constraint("DistanceY", -1, 1, 2, 2, 101.6))
sketch8.addConstraint(Sketcher.Constraint("DistanceX", 0, 2, -1, 1, 66.67))
sketch8.setExpression("Constraints[8]", "Params.sketch8_width")
sketch8.setExpression("Constraints[9]", "Params.sketch8_height")
pocket5 = body.newObject("PartDesign::Pocket", "Pocket004")
pocket5.Profile = sketch8
pocket5.Type = "ThroughAll"

sketch9 = body.newObject("Sketcher::SketchObject", "Sketch008")
sketch9.AttachmentSupport = (doc.getObject("XY_Plane"), [""])
sketch9.MapMode = "FlatFace"
sketch9.AttachmentOffset = App.Placement(Vector(0, 0, 3.18), App.Rotation())
sketch9.addGeometry(Part.Circle(Vector(-17.947927, -36.205078, 0), Vector(0, 0, 1), 1.6), False)
sketch9.addGeometry(Part.Circle(Vector(25.333125, 14.525885, 0), Vector(0, 0, 1), 1.6), False)
sketch9.addGeometry(Part.Circle(Vector(-22.964258, 16.202998, 0), Vector(0, 0, 1), 1.6), False)
sketch9.addGeometry(Part.Circle(Vector(9.952038, -36.249623, 0), Vector(0, 0, 1), 1.6), False)
sketch9.addConstraint(Sketcher.Constraint("Equal", 0, 1))
sketch9.addConstraint(Sketcher.Constraint("Equal", 1, 2))
sketch9.addConstraint(Sketcher.Constraint("Equal", 2, 3))
sketch9.addConstraint(Sketcher.Constraint("Diameter", 0, 3.2))
sketch9.addConstraint(Sketcher.Constraint("DistanceY", -1, 1, 2, 3, 16.202998))
sketch9.addConstraint(Sketcher.Constraint("DistanceX", 2, 3, -1, 1, 22.964258))
sketch9.addConstraint(Sketcher.Constraint("DistanceX", 0, 3, 1, 3, 43.281052))
sketch9.addConstraint(Sketcher.Constraint("DistanceX", 2, 3, 0, 3, 5.016332))
sketch9.addConstraint(Sketcher.Constraint("DistanceY", 3, 3, 2, 3, 52.452621))
sketch9.addConstraint(Sketcher.Constraint("DistanceY", 0, 3, -1, 1, 36.205078))
sketch9.addConstraint(Sketcher.Constraint("DistanceY", -1, 1, 1, 3, 14.525885))
sketch9.addConstraint(Sketcher.Constraint("DistanceX", -1, 1, 3, 3, 9.952038))
sketch9.setExpression("Constraints[3]", "Params.sketch9_diameter")
pocket6 = body.newObject("PartDesign::Pocket", "Pocket005")
pocket6.Profile = sketch9
pocket6.Type = "ThroughAll"

sketch10 = body.newObject("Sketcher::SketchObject", "Sketch009")
sketch10.AttachmentSupport = (doc.getObject("XY_Plane"), [""])
sketch10.MapMode = "FlatFace"
sketch10.AttachmentOffset = App.Placement(Vector(0, 0, 3.18), App.Rotation())
sketch10.addGeometry(Part.LineSegment(Vector(-15.642688, -50.880926, 0), Vector(-15.642688, -61.41814, 0)), False)
sketch10.addGeometry(Part.LineSegment(Vector(-15.642688, -61.41814, 0), Vector(8.923109, -61.41814, 0)), False)
sketch10.addGeometry(Part.LineSegment(Vector(8.923109, -61.41814, 0), Vector(8.923109, -50.880926, 0)), False)
sketch10.addGeometry(Part.LineSegment(Vector(8.923109, -50.880926, 0), Vector(-15.642688, -50.880926, 0)), False)
sketch10.addConstraint(Sketcher.Constraint("Coincident", 0, 2, 1, 1))
sketch10.addConstraint(Sketcher.Constraint("Coincident", 1, 2, 2, 1))
sketch10.addConstraint(Sketcher.Constraint("Coincident", 2, 2, 3, 1))
sketch10.addConstraint(Sketcher.Constraint("Coincident", 3, 2, 0, 1))
sketch10.addConstraint(Sketcher.Constraint("Vertical", 0))
sketch10.addConstraint(Sketcher.Constraint("Horizontal", 1))
sketch10.addConstraint(Sketcher.Constraint("Vertical", 2))
sketch10.addConstraint(Sketcher.Constraint("Horizontal", 3))
sketch10.addConstraint(Sketcher.Constraint("DistanceX", 1, 1, 1, 2, 24.565797))
sketch10.addConstraint(Sketcher.Constraint("DistanceY", 0, 2, 0, 1, 10.537214))
sketch10.addConstraint(Sketcher.Constraint("DistanceX", 0, 2, -1, 1, 15.642688))
sketch10.addConstraint(Sketcher.Constraint("DistanceY", 0, 2, -1, 1, 61.41814))
pocket7 = body.newObject("PartDesign::Pocket", "Pocket006")
pocket7.Profile = sketch10
pocket7.setExpression("Length", "Params.pocket7_length")

sketch11 = body.newObject("Sketcher::SketchObject", "Sketch010")
sketch11.AttachmentSupport = (doc.getObject("XY_Plane"), [""])
sketch11.MapMode = "FlatFace"
sketch11.AttachmentOffset = App.Placement(Vector(0, 0, 3.18), App.Rotation())
sketch11.addGeometry(Part.Circle(Vector(17.523878, 81.797398, 0), Vector(0, 0, 1), 1.59), False)
sketch11.addGeometry(Part.Circle(Vector(-14.883092, 81.797398, 0), Vector(0, 0, 1), 1.717883), False)
sketch11.addConstraint(Sketcher.Constraint("Horizontal", 0, 3, 1, 3))
sketch11.addConstraint(Sketcher.Constraint("Diameter", 0, 3.18))
sketch11.addConstraint(Sketcher.Constraint("Diameter", 1, 3.435765))
sketch11.addConstraint(Sketcher.Constraint("DistanceY", -1, 1, 0, 3, 81.797398))
sketch11.addConstraint(Sketcher.Constraint("DistanceX", -1, 1, 0, 3, 17.523878))
sketch11.addConstraint(Sketcher.Constraint("DistanceX", 1, 3, -1, 1, 14.883092))
sketch11.setExpression("Constraints[1]", "Params.sketch11_diameter")
pocket8 = body.newObject("PartDesign::Pocket", "Pocket007")
pocket8.Profile = sketch11
pocket8.setExpression("Length", "Params.pocket8_length")

doc.recompute()
